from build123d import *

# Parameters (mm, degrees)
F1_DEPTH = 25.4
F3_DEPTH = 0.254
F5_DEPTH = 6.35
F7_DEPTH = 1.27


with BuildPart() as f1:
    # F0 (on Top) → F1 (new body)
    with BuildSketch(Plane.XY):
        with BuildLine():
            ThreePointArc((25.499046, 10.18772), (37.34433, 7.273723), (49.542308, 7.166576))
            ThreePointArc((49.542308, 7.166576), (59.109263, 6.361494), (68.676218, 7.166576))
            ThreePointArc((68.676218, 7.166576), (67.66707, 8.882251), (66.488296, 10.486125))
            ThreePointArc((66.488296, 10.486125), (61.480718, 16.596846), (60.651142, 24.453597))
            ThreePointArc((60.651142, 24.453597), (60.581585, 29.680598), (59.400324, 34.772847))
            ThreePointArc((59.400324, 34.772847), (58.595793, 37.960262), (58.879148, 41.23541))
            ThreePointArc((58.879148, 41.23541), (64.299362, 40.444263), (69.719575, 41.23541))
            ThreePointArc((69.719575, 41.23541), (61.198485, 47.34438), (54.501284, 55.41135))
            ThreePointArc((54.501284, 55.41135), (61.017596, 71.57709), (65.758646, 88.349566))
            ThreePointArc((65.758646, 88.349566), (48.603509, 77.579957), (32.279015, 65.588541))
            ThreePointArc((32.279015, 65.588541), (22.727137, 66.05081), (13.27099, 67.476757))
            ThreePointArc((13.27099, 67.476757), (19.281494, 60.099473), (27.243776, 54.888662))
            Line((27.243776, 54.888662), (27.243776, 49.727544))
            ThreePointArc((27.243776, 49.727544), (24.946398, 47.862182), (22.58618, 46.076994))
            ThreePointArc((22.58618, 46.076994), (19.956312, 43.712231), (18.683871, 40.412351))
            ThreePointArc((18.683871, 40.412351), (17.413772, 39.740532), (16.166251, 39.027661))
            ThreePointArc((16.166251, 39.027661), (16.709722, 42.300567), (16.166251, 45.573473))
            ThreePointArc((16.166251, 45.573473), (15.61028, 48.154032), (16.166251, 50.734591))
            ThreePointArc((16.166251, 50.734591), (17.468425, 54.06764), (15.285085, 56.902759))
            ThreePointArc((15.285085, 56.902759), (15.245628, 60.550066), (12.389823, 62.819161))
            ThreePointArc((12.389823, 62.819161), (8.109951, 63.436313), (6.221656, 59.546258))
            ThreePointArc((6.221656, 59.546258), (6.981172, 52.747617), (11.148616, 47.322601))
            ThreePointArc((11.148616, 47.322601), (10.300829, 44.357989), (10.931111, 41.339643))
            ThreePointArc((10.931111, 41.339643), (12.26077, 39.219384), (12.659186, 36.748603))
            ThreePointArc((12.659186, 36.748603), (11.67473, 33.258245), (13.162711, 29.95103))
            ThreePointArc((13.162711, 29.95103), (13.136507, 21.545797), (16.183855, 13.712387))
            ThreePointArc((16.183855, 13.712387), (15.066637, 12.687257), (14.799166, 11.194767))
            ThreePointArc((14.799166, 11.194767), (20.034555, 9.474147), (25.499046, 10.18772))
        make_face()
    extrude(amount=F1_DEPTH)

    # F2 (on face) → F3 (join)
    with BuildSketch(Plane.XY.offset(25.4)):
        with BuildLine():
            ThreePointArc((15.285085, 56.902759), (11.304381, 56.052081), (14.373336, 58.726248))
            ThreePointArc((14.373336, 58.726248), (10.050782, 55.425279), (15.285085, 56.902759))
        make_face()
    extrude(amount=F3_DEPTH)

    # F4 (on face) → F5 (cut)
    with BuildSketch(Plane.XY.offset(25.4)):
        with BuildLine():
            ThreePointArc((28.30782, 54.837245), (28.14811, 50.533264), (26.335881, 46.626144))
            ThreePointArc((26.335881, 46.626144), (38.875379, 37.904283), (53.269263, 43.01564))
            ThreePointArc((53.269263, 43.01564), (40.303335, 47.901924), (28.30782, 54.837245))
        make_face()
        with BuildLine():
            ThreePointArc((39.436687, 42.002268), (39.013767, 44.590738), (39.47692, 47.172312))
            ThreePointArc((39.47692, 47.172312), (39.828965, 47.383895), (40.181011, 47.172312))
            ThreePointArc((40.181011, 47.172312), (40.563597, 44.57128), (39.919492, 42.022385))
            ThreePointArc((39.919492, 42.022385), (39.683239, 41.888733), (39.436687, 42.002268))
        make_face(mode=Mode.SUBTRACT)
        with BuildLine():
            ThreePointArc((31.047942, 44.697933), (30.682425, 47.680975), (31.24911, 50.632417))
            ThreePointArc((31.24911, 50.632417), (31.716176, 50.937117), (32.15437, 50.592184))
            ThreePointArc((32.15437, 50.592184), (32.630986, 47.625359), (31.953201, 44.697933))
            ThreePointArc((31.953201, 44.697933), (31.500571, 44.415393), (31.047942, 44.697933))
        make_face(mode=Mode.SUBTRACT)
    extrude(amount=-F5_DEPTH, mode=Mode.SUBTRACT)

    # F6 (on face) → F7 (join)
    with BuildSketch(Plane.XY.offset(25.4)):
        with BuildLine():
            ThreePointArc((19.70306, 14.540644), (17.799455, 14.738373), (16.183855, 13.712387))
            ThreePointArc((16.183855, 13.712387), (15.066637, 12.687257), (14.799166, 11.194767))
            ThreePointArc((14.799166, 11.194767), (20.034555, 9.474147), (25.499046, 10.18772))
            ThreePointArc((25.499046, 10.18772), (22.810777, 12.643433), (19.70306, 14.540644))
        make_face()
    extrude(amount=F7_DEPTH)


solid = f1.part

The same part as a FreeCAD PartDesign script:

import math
import FreeCAD as App
import Part
import Sketcher

V = App.Vector
Q = App.Units.Quantity

doc = App.newDocument("Part")
body = doc.addObject("PartDesign::Body", "Body")

sketch1 = body.newObject("Sketcher::SketchObject", "Sketch")
sketch1.AttachmentSupport = (doc.getObject("XY_Plane"), [""])
sketch1.MapMode = "FlatFace"
sketch1.addGeometry(Part.ArcOfCircle(Part.Circle(V(43.902225, 59.463619, 0), V(0, 0, 1), 52.600297), math.radians(-110.479264), math.radians(-83.844609)), False)
sketch1.addGeometry(Part.ArcOfCircle(Part.Circle(V(59.109263, 63.607082, 0), V(0, 0, 1), 57.245588), math.radians(-99.620485), math.radians(-80.379515)), False)
sketch1.addGeometry(Part.ArcOfCircle(Part.Circle(V(51.383932, -1.850001, 0), V(0, 0, 1), 19.501842), math.radians(27.538524), math.radians(39.239404)), False)
sketch1.addGeometry(Part.ArcOfCircle(Part.Circle(V(74.198878, 21.911899, 0), V(0, 0, 1), 13.784099), math.radians(169.374226), math.radians(235.986904)), False)
sketch1.addGeometry(Part.ArcOfCircle(Part.Circle(V(36.35688, 26.744271, 0), V(0, 0, 1), 24.402015), math.radians(-5.386418), math.radians(19.20887)), False)
sketch1.addGeometry(Part.ArcOfCircle(Part.Circle(V(68.465443, 38.756204, 0), V(0, 0, 1), 9.901693), math.radians(165.499879), math.radians(203.721447)), False)
sketch1.addGeometry(Part.ArcOfCircle(Part.Circle(V(64.299362, 59.407002, 0), V(0, 0, 1), 18.962739), math.radians(-106.608764), math.radians(-73.391236)), False)
sketch1.addGeometry(Part.ArcOfCircle(Part.Circle(V(89.19961, 77.404417, 0), V(0, 0, 1), 41.081247), math.radians(-147.631983), math.radians(-118.306179)), False)
sketch1.addGeometry(Part.ArcOfCircle(Part.Circle(V(-92.210129, 123.946046, 0), V(0, 0, 1), 161.929748), math.radians(-25.039136), math.radians(-12.698854)), False)
sketch1.addGeometry(Part.ArcOfCircle(Part.Circle(V(204.733987, -152.075376, 0), V(0, 0, 1), 277.701816), math.radians(120.029649), math.radians(128.389761)), False)
sketch1.addGeometry(Part.ArcOfCircle(Part.Circle(V(32.062078, 160.022458, 0), V(0, 0, 1), 94.434167), math.radians(-101.477676), math.radians(-89.868378)), False)
sketch1.addGeometry(Part.ArcOfCircle(Part.Circle(V(40.066337, 83.17065, 0), V(0, 0, 1), 31.053002), math.radians(-149.64272), math.radians(-114.388713)), False)
sketch1.addGeometry(Part.LineSegment(V(27.243776, 54.888662, 0), V(27.243776, 49.727544, 0)), False)
sketch1.addGeometry(Part.ArcOfCircle(Part.Circle(V(-28.087422, 115.525987, 0), V(0, 0, 1), 85.970789), math.radians(-53.883563), math.radians(-49.938864)), False)
sketch1.addGeometry(Part.ArcOfCircle(Part.Circle(V(26.20541, 39.407297, 0), V(0, 0, 1), 7.588392), math.radians(118.485935), math.radians(172.389024)), False)
sketch1.addGeometry(Part.ArcOfCircle(Part.Circle(V(38.649467, 1.130149, 0), V(0, 0, 1), 44.064912), math.radians(116.942437), math.radians(120.679115)), False)
sketch1.addGeometry(Part.ArcOfCircle(Part.Circle(V(6.582894, 42.300567, 0), V(0, 0, 1), 10.126828), math.radians(-18.856052), math.radians(18.856052)), False)
sketch1.addGeometry(Part.ArcOfCircle(Part.Circle(V(21.877143, 48.154032, 0), V(0, 0, 1), 6.266863), math.radians(155.683399), math.radians(204.316601)), False)
sketch1.addGeometry(Part.ArcOfCircle(Part.Circle(V(13.868159, 53.553317, 0), V(0, 0, 1), 3.636817), math.radians(-50.80983), math.radians(67.070019)), False)
sketch1.addGeometry(Part.ArcOfCircle(Part.Circle(V(11.434341, 58.684968, 0), V(0, 0, 1), 4.24317), math.radians(-24.835741), math.radians(76.986475)), False)
sketch1.addGeometry(Part.ArcOfCircle(Part.Circle(V(9.827597, 60.199208, 0), V(0, 0, 1), 3.664581), math.radians(45.638217), math.radians(190.263693)), False)
sketch1.addGeometry(Part.ArcOfCircle(Part.Circle(V(18.794198, 57.509065, 0), V(0, 0, 1), 12.736521), math.radians(170.796067), math.radians(233.109466)), False)
sketch1.addGeometry(Part.ArcOfCircle(Part.Circle(V(16.724831, 44.12445, 0), V(0, 0, 1), 6.428246), math.radians(150.164249), math.radians(205.671713)), False)
sketch1.addGeometry(Part.ArcOfCircle(Part.Circle(V(6.369489, 37.001896, 0), V(0, 0, 1), 6.294795), math.radians(-2.306116), math.radians(43.558956)), False)
sketch1.addGeometry(Part.ArcOfCircle(Part.Circle(V(16.965051, 33.650121, 0), V(0, 0, 1), 5.304815), math.radians(144.261374), math.radians(224.211434)), False)
sketch1.addGeometry(Part.ArcOfCircle(Part.Circle(V(35.353494, 25.679191, 0), V(0, 0, 1), 22.598218), math.radians(169.103566), math.radians(211.974809)), False)
sketch1.addGeometry(Part.ArcOfCircle(Part.Circle(V(17.143867, 11.544782, 0), V(0, 0, 1), 2.370682), math.radians(113.888113), math.radians(188.490369)), False)
sketch1.addGeometry(Part.ArcOfCircle(Part.Circle(V(21.198489, 21.840948, 0), V(0, 0, 1), 12.421453), math.radians(-121.009697), math.radians(-69.743708)), False)
sketch1.addConstraint(Sketcher.Constraint("Coincident", 0, 2, 1, 1))
sketch1.addConstraint(Sketcher.Constraint("Coincident", 1, 2, 2, 1))
sketch1.addConstraint(Sketcher.Constraint("Coincident", 2, 2, 3, 2))
sketch1.addConstraint(Sketcher.Constraint("Coincident", 3, 1, 4, 1))
sketch1.addConstraint(Sketcher.Constraint("Coincident", 4, 2, 5, 2))
sketch1.addConstraint(Sketcher.Constraint("Coincident", 5, 1, 6, 1))
sketch1.addConstraint(Sketcher.Constraint("Coincident", 6, 2, 7, 2))
sketch1.addConstraint(Sketcher.Constraint("Coincident", 7, 1, 8, 1))
sketch1.addConstraint(Sketcher.Constraint("Coincident", 8, 2, 9, 1))
sketch1.addConstraint(Sketcher.Constraint("Coincident", 9, 2, 10, 2))
sketch1.addConstraint(Sketcher.Constraint("Coincident", 10, 1, 11, 1))
sketch1.addConstraint(Sketcher.Constraint("Coincident", 11, 2, 12, 1))
sketch1.addConstraint(Sketcher.Constraint("Coincident", 12, 2, 13, 2))
sketch1.addConstraint(Sketcher.Constraint("Coincident", 13, 1, 14, 1))
sketch1.addConstraint(Sketcher.Constraint("Coincident", 14, 2, 15, 1))
sketch1.addConstraint(Sketcher.Constraint("Coincident", 15, 2, 16, 1))
sketch1.addConstraint(Sketcher.Constraint("Coincident", 16, 2, 17, 2))
sketch1.addConstraint(Sketcher.Constraint("Coincident", 17, 1, 18, 1))
sketch1.addConstraint(Sketcher.Constraint("Coincident", 18, 2, 19, 1))
sketch1.addConstraint(Sketcher.Constraint("Coincident", 19, 2, 20, 1))
sketch1.addConstraint(Sketcher.Constraint("Coincident", 20, 2, 21, 1))
sketch1.addConstraint(Sketcher.Constraint("Coincident", 21, 2, 22, 1))
sketch1.addConstraint(Sketcher.Constraint("Coincident", 22, 2, 23, 2))
sketch1.addConstraint(Sketcher.Constraint("Coincident", 23, 1, 24, 1))
sketch1.addConstraint(Sketcher.Constraint("Coincident", 24, 2, 25, 1))
sketch1.addConstraint(Sketcher.Constraint("Coincident", 25, 2, 26, 1))
sketch1.addConstraint(Sketcher.Constraint("Coincident", 26, 2, 27, 1))
sketch1.addConstraint(Sketcher.Constraint("Coincident", 27, 2, 0, 1))
sketch1.addConstraint(Sketcher.Constraint("Vertical", 12))
sketch1.addConstraint(Sketcher.Constraint("Radius", 3, Q("13.784099 mm")))
sketch1.addConstraint(Sketcher.Constraint("Radius", 11, Q("31.053002 mm")))
sketch1.addConstraint(Sketcher.Constraint("Radius", 1, Q("57.245588 mm")))
sketch1.addConstraint(Sketcher.Constraint("Radius", 2, Q("19.501842 mm")))
sketch1.addConstraint(Sketcher.Constraint("Radius", 6, Q("18.962739 mm")))
sketch1.addConstraint(Sketcher.Constraint("Radius", 8, Q("161.929748 mm")))
sketch1.addConstraint(Sketcher.Constraint("Radius", 13, Q("85.970789 mm")))
sketch1.addConstraint(Sketcher.Constraint("Radius", 14, Q("7.588392 mm")))
sketch1.addConstraint(Sketcher.Constraint("Radius", 15, Q("44.064912 mm")))
sketch1.addConstraint(Sketcher.Constraint("Radius", 19, Q("4.24317 mm")))
sketch1.addConstraint(Sketcher.Constraint("Radius", 20, Q("3.664581 mm")))
sketch1.addConstraint(Sketcher.Constraint("Radius", 21, Q("12.736521 mm")))
sketch1.addConstraint(Sketcher.Constraint("Radius", 25, Q("22.598218 mm")))
sketch1.addConstraint(Sketcher.Constraint("Radius", 0, Q("52.600297 mm")))
sketch1.addConstraint(Sketcher.Constraint("Radius", 4, Q("24.402015 mm")))
sketch1.addConstraint(Sketcher.Constraint("Radius", 5, Q("9.901693 mm")))
sketch1.addConstraint(Sketcher.Constraint("Radius", 7, Q("41.081247 mm")))
sketch1.addConstraint(Sketcher.Constraint("Radius", 9, Q("277.701816 mm")))
sketch1.addConstraint(Sketcher.Constraint("Radius", 10, Q("94.434167 mm")))
sketch1.addConstraint(Sketcher.Constraint("Radius", 16, Q("10.126828 mm")))
sketch1.addConstraint(Sketcher.Constraint("Radius", 17, Q("6.266863 mm")))
sketch1.addConstraint(Sketcher.Constraint("Radius", 18, Q("3.636817 mm")))
sketch1.addConstraint(Sketcher.Constraint("Radius", 22, Q("6.428246 mm")))
sketch1.addConstraint(Sketcher.Constraint("Radius", 23, Q("6.294795 mm")))
sketch1.addConstraint(Sketcher.Constraint("Radius", 24, Q("5.304815 mm")))
sketch1.addConstraint(Sketcher.Constraint("Radius", 26, Q("2.370682 mm")))
sketch1.addConstraint(Sketcher.Constraint("Radius", 27, Q("12.421453 mm")))
sketch1.addConstraint(Sketcher.Constraint("DistanceY", 2, 3, -1, 1, Q("1.850001 mm")))
sketch1.addConstraint(Sketcher.Constraint("DistanceY", -1, 1, 3, 3, Q("21.911899 mm")))
sketch1.addConstraint(Sketcher.Constraint("DistanceY", -1, 1, 6, 3, Q("59.407002 mm")))
sketch1.addConstraint(Sketcher.Constraint("DistanceX", -1, 1, 21, 3, Q("18.794198 mm")))
sketch1.addConstraint(Sketcher.Constraint("DistanceY", -1, 1, 21, 2, Q("47.322601 mm")))
sketch1.addConstraint(Sketcher.Constraint("DistanceX", 4, 3, 3, 3, Q("37.841998 mm")))
sketch1.addConstraint(Sketcher.Constraint("DistanceX", 1, 3, 6, 3, Q("5.190099 mm")))
sketch1.addConstraint(Sketcher.Constraint("DistanceY", 0, 3, 7, 3, Q("17.940798 mm")))
sketch1.addConstraint(Sketcher.Constraint("DistanceX", 13, 3, 10, 3, Q("60.149499 mm")))
sketch1.addConstraint(Sketcher.Constraint("DistanceX", 19, 3, 17, 3, Q("10.442802 mm")))
sketch1.addConstraint(Sketcher.Constraint("DistanceY", 16, 3, 19, 3, Q("16.384401 mm")))
sketch1.addConstraint(Sketcher.Constraint("DistanceX", 20, 3, 21, 3, Q("8.966601 mm")))
sketch1.addConstraint(Sketcher.Constraint("DistanceY", 23, 3, 14, 3, Q("2.405401 mm")))
sketch1.addConstraint(Sketcher.Constraint("DistanceX", 26, 3, 15, 3, Q("21.5056 mm")))
sketch1.addConstraint(Sketcher.Constraint("DistanceY", 3, 3, 3, 1, Q("2.541698 mm")))
sketch1.addConstraint(Sketcher.Constraint("DistanceX", 3, 1, 5, 3, Q("7.814301 mm")))
sketch1.addConstraint(Sketcher.Constraint("DistanceY", 14, 2, 22, 3, Q("3.712099 mm")))
sketch1.addConstraint(Sketcher.Constraint("DistanceX", 15, 2, 24, 3, Q("0.7988 mm")))
sketch1.addConstraint(Sketcher.Constraint("DistanceY", 18, 2, 20, 2, Q("2.643499 mm")))
sketch1.addConstraint(Sketcher.Constraint("DistanceX", 26, 2, 26, 3, Q("2.344701 mm")))
sketch1.addConstraint(Sketcher.Constraint("DistanceY", 12, 2, 12, 1, Q("5.161118 mm")))
sketch1.addConstraint(Sketcher.Constraint("DistanceY", -1, 1, 0, 3, Q("59.463619 mm")))
sketch1.addConstraint(Sketcher.Constraint("DistanceX", -1, 1, 2, 3, Q("51.383932 mm")))
sketch1.addConstraint(Sketcher.Constraint("DistanceX", -1, 1, 3, 3, Q("74.198878 mm")))
sketch1.addConstraint(Sketcher.Constraint("DistanceX", -1, 1, 6, 3, Q("64.299362 mm")))
sketch1.addConstraint(Sketcher.Constraint("DistanceX", -1, 1, 7, 3, Q("89.19961 mm")))
sketch1.addConstraint(Sketcher.Constraint("DistanceX", 8, 3, -1, 1, Q("92.210129 mm")))
sketch1.addConstraint(Sketcher.Constraint("DistanceY", -1, 1, 10, 3, Q("160.022458 mm")))
sketch1.addConstraint(Sketcher.Constraint("DistanceY", -1, 1, 11, 3, Q("83.17065 mm")))
sketch1.addConstraint(Sketcher.Constraint("DistanceX", 13, 3, -1, 1, Q("28.087422 mm")))
sketch1.addConstraint(Sketcher.Constraint("DistanceX", -1, 1, 14, 3, Q("26.20541 mm")))
sketch1.addConstraint(Sketcher.Constraint("DistanceY", -1, 1, 15, 3, Q("1.130149 mm")))
sketch1.addConstraint(Sketcher.Constraint("DistanceX", -1, 1, 18, 3, Q("13.868159 mm")))
sketch1.addConstraint(Sketcher.Constraint("DistanceX", -1, 1, 19, 3, Q("11.434341 mm")))
sketch1.addConstraint(Sketcher.Constraint("DistanceY", -1, 1, 19, 3, Q("58.684968 mm")))
sketch1.addConstraint(Sketcher.Constraint("DistanceY", -1, 1, 20, 3, Q("60.199208 mm")))
sketch1.addConstraint(Sketcher.Constraint("DistanceX", -1, 1, 22, 3, Q("16.724831 mm")))
sketch1.addConstraint(Sketcher.Constraint("DistanceY", -1, 1, 22, 3, Q("44.12445 mm")))
sketch1.addConstraint(Sketcher.Constraint("DistanceX", -1, 1, 23, 3, Q("6.369489 mm")))
sketch1.addConstraint(Sketcher.Constraint("DistanceX", -1, 1, 24, 3, Q("16.965051 mm")))
sketch1.addConstraint(Sketcher.Constraint("DistanceY", -1, 1, 24, 3, Q("33.650121 mm")))
sketch1.addConstraint(Sketcher.Constraint("DistanceY", -1, 1, 25, 3, Q("25.679191 mm")))
sketch1.addConstraint(Sketcher.Constraint("DistanceX", -1, 1, 27, 3, Q("21.198489 mm")))
sketch1.addConstraint(Sketcher.Constraint("DistanceX", -1, 1, 5, 1, Q("58.879148 mm")))
sketch1.addConstraint(Sketcher.Constraint("DistanceY", -1, 1, 7, 1, Q("55.41135 mm")))
sketch1.addConstraint(Sketcher.Constraint("DistanceX", -1, 1, 10, 1, Q("13.27099 mm")))
sketch1.addConstraint(Sketcher.Constraint("DistanceX", -1, 1, 13, 1, Q("22.58618 mm")))
sketch1.addConstraint(Sketcher.Constraint("DistanceX", -1, 1, 14, 2, Q("18.683871 mm")))
sketch1.addConstraint(Sketcher.Constraint("DistanceX", -1, 1, 16, 2, Q("16.166251 mm")))
sketch1.addConstraint(Sketcher.Constraint("DistanceX", -1, 1, 24, 2, Q("13.162711 mm")))
sketch1.addConstraint(Sketcher.Constraint("DistanceY", -1, 1, 27, 2, Q("10.18772 mm")))
sketch1.addConstraint(Sketcher.Constraint("DistanceY", 4, 3, 1, 3, Q("36.862811 mm")))
sketch1.addConstraint(Sketcher.Constraint("DistanceX", 3, 3, 9, 3, Q("130.535109 mm")))
sketch1.addConstraint(Sketcher.Constraint("DistanceY", 9, 3, 5, 3, Q("190.83158 mm")))
sketch1.addConstraint(Sketcher.Constraint("DistanceX", 11, 3, 0, 3, Q("3.835888 mm")))
pad1 = body.newObject("PartDesign::Pad", "Pad")
pad1.Profile = sketch1
pad1.Length = Q("1 in")

sketch2 = body.newObject("Sketcher::SketchObject", "Sketch001")
sketch2.AttachmentSupport = (doc.getObject("XY_Plane"), [""])
sketch2.MapMode = "FlatFace"
sketch2.AttachmentOffset = App.Placement(V(0, 0, 1 * 25.4), App.Rotation())
sketch2.addGeometry(Part.ArcOfCircle(Part.Circle(V(13.2, 57, 0), V(0, 0, 1), 2.1), math.radians(56), math.radians(358)), False)
sketch2.addGeometry(Part.ArcOfCircle(Part.Circle(V(12.5, 56.7, 0), V(0, 0, 1), 2.8), math.radians(48), math.radians(365)), False)
sketch2.addConstraint(Sketcher.Constraint("Coincident", 0, 1, 1, 1))
sketch2.addConstraint(Sketcher.Constraint("Coincident", 1, 2, 0, 2))
sketch2.addConstraint(Sketcher.Constraint("Radius", 0, Q("2.102277 mm")))
sketch2.addConstraint(Sketcher.Constraint("Radius", 1, Q("2.768474 mm")))
sketch2.addConstraint(Sketcher.Constraint("DistanceY", -1, 1, 0, 3, Q("56.992251 mm")))
sketch2.addConstraint(Sketcher.Constraint("DistanceX", -1, 1, 1, 3, Q("12.526979 mm")))
sketch2.addConstraint(Sketcher.Constraint("DistanceY", -1, 1, 0, 1, Q("58.726248 mm")))
sketch2.addConstraint(Sketcher.Constraint("DistanceY", -1, 1, 1, 2, Q("56.902759 mm")))
pad2 = body.newObject("PartDesign::Pad", "Pad001")
pad2.Profile = sketch2
pad2.Length = Q("0.01 in")

sketch3 = body.newObject("Sketcher::SketchObject", "Sketch002")
sketch3.AttachmentSupport = (doc.getObject("XY_Plane"), [""])
sketch3.MapMode = "FlatFace"
sketch3.AttachmentOffset = App.Placement(V(0, 0, 1 * 25.4), App.Rotation())
sketch3.addGeometry(Part.ArcOfCircle(Part.Circle(V(17.54, 53.08, 0), V(0, 0, 1), 10.91), math.radians(-36), math.radians(9)), False)
sketch3.addGeometry(Part.ArcOfCircle(Part.Circle(V(41.1, 54.47, 0), V(0, 0, 1), 16.72), math.radians(-152), math.radians(-43)), False)
sketch3.addGeometry(Part.ArcOfCircle(Part.Circle(V(76.55, 124.43, 0), V(0, 0, 1), 84.68), math.radians(-124.73), math.radians(-105.96)), False)
sketch3.addGeometry(Part.ArcOfCircle(Part.Circle(V(39.67, 42.19, 0), V(0, 0, 1), 0.3), math.radians(-142), math.radians(-33)), False)
sketch3.addGeometry(Part.ArcOfCircle(Part.Circle(V(46.78, 44.53, 0), V(0, 0, 1), 7.76), math.radians(160), math.radians(199)), False)
sketch3.addGeometry(Part.ArcOfCircle(Part.Circle(V(39.83, 46.99, 0), V(0, 0, 1), 0.4), math.radians(28), math.radians(152)), False)
sketch3.addGeometry(Part.ArcOfCircle(Part.Circle(V(33.85, 44.91, 0), V(0, 0, 1), 6.72), math.radians(-25), math.radians(20)), False)
sketch3.addGeometry(Part.ArcOfCircle(Part.Circle(V(31.5, 44.92, 0), V(0, 0, 1), 0.5), math.radians(-154), math.radians(-26)), False)
sketch3.addGeometry(Part.ArcOfCircle(Part.Circle(V(40.36, 47.35, 0), V(0, 0, 1), 9.68), math.radians(160), math.radians(196)), False)
sketch3.addGeometry(Part.ArcOfCircle(Part.Circle(V(31.69, 50.46, 0), V(0, 0, 1), 0.48), math.radians(16), math.radians(159)), False)
sketch3.addGeometry(Part.ArcOfCircle(Part.Circle(V(24.82, 47.89, 0), V(0, 0, 1), 7.82), math.radians(-24), math.radians(20)), False)
sketch3.addConstraint(Sketcher.Constraint("Coincident", 0, 1, 1, 1))
sketch3.addConstraint(Sketcher.Constraint("Coincident", 1, 2, 2, 2))
sketch3.addConstraint(Sketcher.Constraint("Coincident", 2, 1, 0, 2))
sketch3.addConstraint(Sketcher.Constraint("Coincident", 3, 1, 4, 2))
sketch3.addConstraint(Sketcher.Constraint("Coincident", 4, 1, 5, 2))
sketch3.addConstraint(Sketcher.Constraint("Coincident", 5, 1, 6, 2))
sketch3.addConstraint(Sketcher.Constraint("Coincident", 6, 1, 3, 2))
sketch3.addConstraint(Sketcher.Constraint("Coincident", 7, 1, 8, 2))
sketch3.addConstraint(Sketcher.Constraint("Coincident", 8, 1, 9, 2))
sketch3.addConstraint(Sketcher.Constraint("Coincident", 9, 1, 10, 2))
sketch3.addConstraint(Sketcher.Constraint("Coincident", 10, 1, 7, 2))
sketch3.addConstraint(Sketcher.Constraint("Horizontal", 4, 1, 5, 1))
sketch3.addConstraint(Sketcher.Constraint("Horizontal", 7, 1, 10, 1))
sketch3.addConstraint(Sketcher.Constraint("Radius", 0, Q("10.914801 mm")))
sketch3.addConstraint(Sketcher.Constraint("DistanceX", -1, 1, 10, 1, Q("1.258 in")))
sketch3.addConstraint(Sketcher.Constraint("Radius", 3, Q("0.297808 mm")))
sketch3.addConstraint(Sketcher.Constraint("Radius", 5, Q("0.39867 mm")))
sketch3.addConstraint(Sketcher.Constraint("Radius", 6, Q("6.72339 mm")))
sketch3.addConstraint(Sketcher.Constraint("Radius", 9, Q("0.478249 mm")))
sketch3.addConstraint(Sketcher.Constraint("Radius", 1, Q("16.716384 mm")))
sketch3.addConstraint(Sketcher.Constraint("Radius", 2, Q("84.681533 mm")))
sketch3.addConstraint(Sketcher.Constraint("Radius", 4, Q("7.763275 mm")))
sketch3.addConstraint(Sketcher.Constraint("Radius", 7, Q("0.503827 mm")))
sketch3.addConstraint(Sketcher.Constraint("Radius", 8, Q("9.683478 mm")))
sketch3.addConstraint(Sketcher.Constraint("Radius", 10, Q("7.817007 mm")))
sketch3.addConstraint(Sketcher.Constraint("DistanceX", 9, 3, 6, 3, Q("0.0847999 in")))
sketch3.addConstraint(Sketcher.Constraint("DistanceX", 8, 1, 7, 3, Q("0.0099001 in")))
sketch3.addConstraint(Sketcher.Constraint("DistanceX", 3, 3, 2, 3, Q("36.877901 mm")))
sketch3.addConstraint(Sketcher.Constraint("DistanceY", 3, 3, 2, 3, Q("82.248199 mm")))
sketch3.addConstraint(Sketcher.Constraint("DistanceY", 4, 3, 5, 3, Q("2.454899 mm")))
sketch3.addConstraint(Sketcher.Constraint("DistanceY", 6, 3, 1, 3, Q("9.560201 mm")))
sketch3.addConstraint(Sketcher.Constraint("DistanceX", 9, 3, 8, 3, Q("8.665402 mm")))
sketch3.addConstraint(Sketcher.Constraint("DistanceY", 0, 1, 2, 1, Q("8.211101 mm")))
sketch3.addConstraint(Sketcher.Constraint("DistanceY", 4, 1, 8, 3, Q("0.180599 mm")))
sketch3.addConstraint(Sketcher.Constraint("DistanceY", 6, 1, 3, 3, Q("0.163898 mm")))
sketch3.addConstraint(Sketcher.Constraint("DistanceX", 7, 1, 9, 3, Q("0.647 mm")))
sketch3.addConstraint(Sketcher.Constraint("DistanceX", 7, 3, 9, 1, Q("0.653798 mm")))
sketch3.addConstraint(Sketcher.Constraint("DistanceX", -1, 1, 0, 3, Q("17.53507 mm")))
sketch3.addConstraint(Sketcher.Constraint("DistanceY", -1, 1, 0, 3, Q("53.082041 mm")))
sketch3.addConstraint(Sketcher.Constraint("DistanceX", -1, 1, 3, 3, Q("39.670841 mm")))
sketch3.addConstraint(Sketcher.Constraint("DistanceX", -1, 1, 6, 3, Q("33.84886 mm")))
sketch3.addConstraint(Sketcher.Constraint("DistanceY", -1, 1, 7, 3, Q("44.91922 mm")))
sketch3.addConstraint(Sketcher.Constraint("DistanceX", -1, 1, 0, 1, Q("26.335881 mm")))
sketch3.addConstraint(Sketcher.Constraint("DistanceY", -1, 1, 3, 1, Q("42.002268 mm")))
pocket1 = body.newObject("PartDesign::Pocket", "Pocket")
pocket1.Profile = sketch3
pocket1.Length = Q("0.25 in")

sketch4 = body.newObject("Sketcher::SketchObject", "Sketch003")
sketch4.AttachmentSupport = (doc.getObject("XY_Plane"), [""])
sketch4.MapMode = "FlatFace"
sketch4.AttachmentOffset = App.Placement(V(0, 0, 1 * 25.4), App.Rotation())
sketch4.addGeometry(Part.ArcOfCircle(Part.Circle(V(18.5, 11.9, 0), V(0, 0, 1), 2.9), math.radians(65), math.radians(142)), False)
sketch4.addGeometry(Part.ArcOfCircle(Part.Circle(V(17.1, 11.5, 0), V(0, 0, 1), 2.4), math.radians(114), math.radians(188)), False)
sketch4.addGeometry(Part.ArcOfCircle(Part.Circle(V(21.2, 21.8, 0), V(0, 0, 1), 12.4), math.radians(-121), math.radians(-70)), False)
sketch4.addGeometry(Part.ArcOfCircle(Part.Circle(V(11.4, -2.5, 0), V(0, 0, 1), 19), math.radians(42), math.radians(64)), False)
sketch4.addConstraint(Sketcher.Constraint("Coincident", 0, 2, 1, 1))
sketch4.addConstraint(Sketcher.Constraint("Coincident", 1, 2, 2, 1))
sketch4.addConstraint(Sketcher.Constraint("Coincident", 2, 2, 3, 1))
sketch4.addConstraint(Sketcher.Constraint("Coincident", 3, 2, 0, 1))
sketch4.addConstraint(Sketcher.Constraint("Radius", 0, Q("2.913583 mm")))
sketch4.addConstraint(Sketcher.Constraint("Radius", 1, Q("2.370682 mm")))
sketch4.addConstraint(Sketcher.Constraint("Radius", 2, Q("12.421453 mm")))
sketch4.addConstraint(Sketcher.Constraint("Radius", 3, Q("18.980493 mm")))
sketch4.addConstraint(Sketcher.Constraint("DistanceY", 3, 3, -1, 1, Q("2.533499 mm")))
sketch4.addConstraint(Sketcher.Constraint("DistanceX", 3, 3, 0, 3, Q("7.054401 mm")))
sketch4.addConstraint(Sketcher.Constraint("DistanceX", 1, 2, 1, 3, Q("2.344701 mm")))
sketch4.addConstraint(Sketcher.Constraint("DistanceX", -1, 1, 0, 3, Q("18.466939 mm")))
sketch4.addConstraint(Sketcher.Constraint("DistanceY", -1, 1, 0, 3, Q("11.902279 mm")))
sketch4.addConstraint(Sketcher.Constraint("DistanceX", -1, 1, 2, 3, Q("21.198489 mm")))
sketch4.addConstraint(Sketcher.Constraint("DistanceY", -1, 1, 2, 2, Q("10.18772 mm")))
sketch4.addConstraint(Sketcher.Constraint("DistanceX", 1, 3, 0, 3, Q("1.323072 mm")))
pad3 = body.newObject("PartDesign::Pad", "Pad002")
pad3.Profile = sketch4
pad3.Length = Q("0.05 in")

doc.recompute()
